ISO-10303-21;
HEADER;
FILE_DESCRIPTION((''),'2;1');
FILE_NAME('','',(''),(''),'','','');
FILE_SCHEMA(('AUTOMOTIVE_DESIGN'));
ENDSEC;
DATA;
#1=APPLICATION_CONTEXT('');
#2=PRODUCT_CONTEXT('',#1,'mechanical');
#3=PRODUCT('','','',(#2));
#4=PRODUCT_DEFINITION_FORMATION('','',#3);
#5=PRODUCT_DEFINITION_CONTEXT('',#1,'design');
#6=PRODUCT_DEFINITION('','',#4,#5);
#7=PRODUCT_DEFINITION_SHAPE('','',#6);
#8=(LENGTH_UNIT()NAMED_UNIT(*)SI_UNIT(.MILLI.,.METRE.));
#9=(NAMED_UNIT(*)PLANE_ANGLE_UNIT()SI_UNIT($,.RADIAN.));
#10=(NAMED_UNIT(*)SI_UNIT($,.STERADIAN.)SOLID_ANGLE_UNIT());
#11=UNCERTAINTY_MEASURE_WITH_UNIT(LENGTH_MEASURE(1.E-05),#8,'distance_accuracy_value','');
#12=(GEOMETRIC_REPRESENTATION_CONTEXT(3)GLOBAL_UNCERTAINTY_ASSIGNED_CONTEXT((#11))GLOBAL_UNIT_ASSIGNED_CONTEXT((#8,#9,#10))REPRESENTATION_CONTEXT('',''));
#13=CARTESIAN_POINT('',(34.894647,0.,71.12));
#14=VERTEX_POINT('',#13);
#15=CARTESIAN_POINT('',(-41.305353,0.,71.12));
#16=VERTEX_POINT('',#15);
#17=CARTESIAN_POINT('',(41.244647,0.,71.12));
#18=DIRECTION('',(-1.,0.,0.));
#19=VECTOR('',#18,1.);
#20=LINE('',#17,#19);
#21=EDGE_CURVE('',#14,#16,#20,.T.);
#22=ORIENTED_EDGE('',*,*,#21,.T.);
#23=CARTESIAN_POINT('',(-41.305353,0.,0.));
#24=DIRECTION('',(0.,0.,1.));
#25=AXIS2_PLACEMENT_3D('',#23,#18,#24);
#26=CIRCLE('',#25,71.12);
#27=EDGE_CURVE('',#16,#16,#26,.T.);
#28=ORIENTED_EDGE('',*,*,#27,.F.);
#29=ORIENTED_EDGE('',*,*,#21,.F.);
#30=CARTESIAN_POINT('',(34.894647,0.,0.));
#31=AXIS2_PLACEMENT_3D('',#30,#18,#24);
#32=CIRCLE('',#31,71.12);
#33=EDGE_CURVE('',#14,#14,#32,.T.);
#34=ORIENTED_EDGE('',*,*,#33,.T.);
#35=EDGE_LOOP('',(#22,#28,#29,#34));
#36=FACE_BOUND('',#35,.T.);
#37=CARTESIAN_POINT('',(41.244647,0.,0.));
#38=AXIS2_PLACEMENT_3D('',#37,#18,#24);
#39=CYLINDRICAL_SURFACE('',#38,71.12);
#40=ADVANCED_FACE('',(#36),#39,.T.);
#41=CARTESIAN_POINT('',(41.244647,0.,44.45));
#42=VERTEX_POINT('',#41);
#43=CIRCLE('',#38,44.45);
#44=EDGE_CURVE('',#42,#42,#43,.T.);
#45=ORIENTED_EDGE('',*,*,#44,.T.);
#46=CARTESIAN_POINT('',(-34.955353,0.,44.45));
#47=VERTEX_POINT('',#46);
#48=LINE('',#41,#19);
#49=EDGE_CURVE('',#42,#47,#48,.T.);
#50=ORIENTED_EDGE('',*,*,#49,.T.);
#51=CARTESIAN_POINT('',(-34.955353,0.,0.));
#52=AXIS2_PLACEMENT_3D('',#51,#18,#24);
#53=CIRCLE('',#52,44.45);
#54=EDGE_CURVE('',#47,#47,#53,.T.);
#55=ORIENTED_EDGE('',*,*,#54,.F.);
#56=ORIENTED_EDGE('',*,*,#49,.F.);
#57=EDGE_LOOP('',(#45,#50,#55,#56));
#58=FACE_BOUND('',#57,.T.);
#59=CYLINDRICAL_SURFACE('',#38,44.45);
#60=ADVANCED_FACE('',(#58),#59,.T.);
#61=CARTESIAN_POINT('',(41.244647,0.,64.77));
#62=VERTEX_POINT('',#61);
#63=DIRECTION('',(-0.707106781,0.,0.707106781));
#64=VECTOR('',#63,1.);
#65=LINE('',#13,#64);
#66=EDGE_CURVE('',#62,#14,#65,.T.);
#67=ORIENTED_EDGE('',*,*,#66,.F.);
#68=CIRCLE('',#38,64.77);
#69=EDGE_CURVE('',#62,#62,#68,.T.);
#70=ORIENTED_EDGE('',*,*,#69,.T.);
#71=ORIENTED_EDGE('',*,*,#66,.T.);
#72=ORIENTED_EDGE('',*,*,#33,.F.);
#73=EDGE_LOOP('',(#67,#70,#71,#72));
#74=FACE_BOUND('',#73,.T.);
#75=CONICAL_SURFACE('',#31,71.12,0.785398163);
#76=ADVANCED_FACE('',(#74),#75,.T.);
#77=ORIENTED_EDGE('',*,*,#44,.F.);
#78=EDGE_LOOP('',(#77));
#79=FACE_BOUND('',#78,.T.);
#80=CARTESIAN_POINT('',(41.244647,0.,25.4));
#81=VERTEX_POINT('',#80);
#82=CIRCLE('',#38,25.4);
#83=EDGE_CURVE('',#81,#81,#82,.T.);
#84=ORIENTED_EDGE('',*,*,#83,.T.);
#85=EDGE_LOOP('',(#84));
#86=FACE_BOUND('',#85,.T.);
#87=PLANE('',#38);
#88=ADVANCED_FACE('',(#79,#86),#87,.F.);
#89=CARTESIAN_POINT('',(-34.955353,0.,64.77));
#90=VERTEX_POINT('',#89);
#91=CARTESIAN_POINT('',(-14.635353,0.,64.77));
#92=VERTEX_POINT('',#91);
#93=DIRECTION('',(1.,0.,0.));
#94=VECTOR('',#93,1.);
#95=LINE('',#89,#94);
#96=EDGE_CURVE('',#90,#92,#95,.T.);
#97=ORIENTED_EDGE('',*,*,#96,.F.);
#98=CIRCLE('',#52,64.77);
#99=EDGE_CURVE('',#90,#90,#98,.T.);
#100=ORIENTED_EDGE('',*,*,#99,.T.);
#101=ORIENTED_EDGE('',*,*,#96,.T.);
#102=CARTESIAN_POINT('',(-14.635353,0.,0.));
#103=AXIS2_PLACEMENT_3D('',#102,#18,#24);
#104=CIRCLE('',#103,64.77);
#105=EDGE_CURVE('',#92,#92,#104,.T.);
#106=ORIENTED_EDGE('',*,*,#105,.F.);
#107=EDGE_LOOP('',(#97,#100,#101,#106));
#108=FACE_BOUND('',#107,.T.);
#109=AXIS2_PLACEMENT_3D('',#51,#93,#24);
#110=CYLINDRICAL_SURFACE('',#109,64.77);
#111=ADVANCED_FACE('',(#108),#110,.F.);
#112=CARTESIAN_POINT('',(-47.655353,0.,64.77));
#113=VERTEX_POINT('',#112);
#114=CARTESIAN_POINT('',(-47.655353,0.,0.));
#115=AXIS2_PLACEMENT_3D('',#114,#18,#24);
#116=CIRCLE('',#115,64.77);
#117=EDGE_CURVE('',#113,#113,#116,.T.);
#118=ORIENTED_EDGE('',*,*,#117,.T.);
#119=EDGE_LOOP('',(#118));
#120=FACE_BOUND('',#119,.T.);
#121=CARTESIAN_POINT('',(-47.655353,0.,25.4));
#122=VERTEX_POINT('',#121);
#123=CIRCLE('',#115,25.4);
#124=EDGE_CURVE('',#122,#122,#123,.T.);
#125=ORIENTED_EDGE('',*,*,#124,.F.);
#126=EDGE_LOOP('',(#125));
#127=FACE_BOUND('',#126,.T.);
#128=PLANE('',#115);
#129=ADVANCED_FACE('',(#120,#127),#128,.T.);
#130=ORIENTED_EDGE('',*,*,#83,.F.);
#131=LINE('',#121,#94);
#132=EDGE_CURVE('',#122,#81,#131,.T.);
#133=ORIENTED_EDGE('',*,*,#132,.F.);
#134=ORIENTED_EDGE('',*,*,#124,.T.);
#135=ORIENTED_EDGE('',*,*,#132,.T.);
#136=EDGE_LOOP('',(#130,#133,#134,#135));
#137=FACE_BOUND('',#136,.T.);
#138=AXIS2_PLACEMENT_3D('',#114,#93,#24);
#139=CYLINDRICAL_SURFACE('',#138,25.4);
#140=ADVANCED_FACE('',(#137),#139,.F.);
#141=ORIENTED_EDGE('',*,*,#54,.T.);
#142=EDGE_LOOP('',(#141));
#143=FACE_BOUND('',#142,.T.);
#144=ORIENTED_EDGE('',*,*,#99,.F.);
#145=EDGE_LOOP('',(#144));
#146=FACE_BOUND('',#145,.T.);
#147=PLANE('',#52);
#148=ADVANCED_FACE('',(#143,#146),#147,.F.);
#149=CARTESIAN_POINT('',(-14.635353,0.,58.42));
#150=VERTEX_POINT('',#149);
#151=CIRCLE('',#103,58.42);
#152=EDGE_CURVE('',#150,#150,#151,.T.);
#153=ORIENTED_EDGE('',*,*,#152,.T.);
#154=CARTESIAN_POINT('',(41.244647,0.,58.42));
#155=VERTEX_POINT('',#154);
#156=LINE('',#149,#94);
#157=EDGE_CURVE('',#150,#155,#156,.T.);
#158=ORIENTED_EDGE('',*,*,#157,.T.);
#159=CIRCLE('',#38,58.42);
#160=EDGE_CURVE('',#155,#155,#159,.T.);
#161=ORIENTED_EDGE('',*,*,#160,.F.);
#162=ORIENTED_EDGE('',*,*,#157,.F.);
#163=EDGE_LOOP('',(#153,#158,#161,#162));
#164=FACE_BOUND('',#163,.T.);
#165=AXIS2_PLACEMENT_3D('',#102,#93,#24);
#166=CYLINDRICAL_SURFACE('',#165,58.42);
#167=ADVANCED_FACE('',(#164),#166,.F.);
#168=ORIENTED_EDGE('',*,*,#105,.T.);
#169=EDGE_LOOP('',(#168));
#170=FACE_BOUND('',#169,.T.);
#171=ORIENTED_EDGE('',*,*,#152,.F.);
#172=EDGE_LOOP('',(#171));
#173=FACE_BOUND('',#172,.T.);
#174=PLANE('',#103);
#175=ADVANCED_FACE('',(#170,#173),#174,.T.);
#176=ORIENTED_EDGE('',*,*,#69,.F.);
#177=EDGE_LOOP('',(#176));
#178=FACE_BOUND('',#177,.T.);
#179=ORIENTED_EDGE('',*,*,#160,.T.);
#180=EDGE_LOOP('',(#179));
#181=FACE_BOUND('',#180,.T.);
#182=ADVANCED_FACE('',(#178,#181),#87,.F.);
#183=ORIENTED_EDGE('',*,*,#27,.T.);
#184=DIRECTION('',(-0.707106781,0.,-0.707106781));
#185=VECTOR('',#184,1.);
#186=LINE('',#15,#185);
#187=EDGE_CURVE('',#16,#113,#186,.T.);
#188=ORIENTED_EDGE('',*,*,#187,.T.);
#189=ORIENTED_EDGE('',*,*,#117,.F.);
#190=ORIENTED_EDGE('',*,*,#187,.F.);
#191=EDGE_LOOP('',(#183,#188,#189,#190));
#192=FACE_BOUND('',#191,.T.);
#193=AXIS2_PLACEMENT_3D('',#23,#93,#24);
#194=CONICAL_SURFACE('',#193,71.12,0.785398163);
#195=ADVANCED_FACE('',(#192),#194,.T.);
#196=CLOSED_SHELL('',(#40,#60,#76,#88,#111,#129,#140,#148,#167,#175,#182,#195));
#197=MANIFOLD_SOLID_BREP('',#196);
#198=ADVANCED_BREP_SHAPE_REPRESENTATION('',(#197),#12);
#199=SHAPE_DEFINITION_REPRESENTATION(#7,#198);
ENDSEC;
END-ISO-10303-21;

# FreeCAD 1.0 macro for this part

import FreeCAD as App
import Part
import Sketcher
Q = App.Units.Quantity


def edges_at(feature, points):
    """Names of the edges that pass closest to the given points."""
    edges = feature.Shape.Edges
    near = lambda p: min(range(len(edges)), key=lambda i: edges[i].distToShape(Part.Vertex(*p))[0])
    return sorted({f"Edge{near(p) + 1}" for p in points})

doc = App.newDocument("Part")
params = doc.addObject("Spreadsheet::Sheet", "Params")
for row, (alias, value) in enumerate([
    ("sketch1_width", "3 in"),
    ("sketch1_width2", "3.5 in"),
    ("sketch1_width3", "0.8 in"),
    ("sketch1_height", "0.5 in"),
    ("sketch1_height2", "1.8 in"),
    ("revolution_angle", "360 deg"),
    ("chamfer_size", "0.25 in"),
], start=1):
    params.set(f"A{row}", alias)
    params.set(f"B{row}", "=" + value)
    params.setAlias(f"B{row}", alias)

body = doc.addObject("PartDesign::Body", "Body")

sketch1 = body.newObject("Sketcher::SketchObject", "Sketch")
sketch1.AttachmentSupport = (doc.getObject("XZ_Plane"), [""])
sketch1.MapMode = "FlatFace"
sketch1.addGeometry([
    Part.LineSegment(App.Vector(-47.655353, 25.4, 0), App.Vector(41.244647, 25.4, 0)),
    Part.LineSegment(App.Vector(41.244647, 25.4, 0), App.Vector(41.244647, 44.45, 0)),
    Part.LineSegment(App.Vector(41.244647, 44.45, 0), App.Vector(-34.955353, 44.45, 0)),
    Part.LineSegment(App.Vector(-34.955353, 44.45, 0), App.Vector(-34.955353, 64.77, 0)),
    Part.LineSegment(App.Vector(-34.955353, 64.77, 0), App.Vector(-14.635353, 64.77, 0)),
    Part.LineSegment(App.Vector(-14.635353, 64.77, 0), App.Vector(-14.635353, 58.42, 0)),
    Part.LineSegment(App.Vector(-14.635353, 58.42, 0), App.Vector(41.244647, 58.42, 0)),
    Part.LineSegment(App.Vector(41.244647, 58.42, 0), App.Vector(41.244647, 71.12, 0)),
    Part.LineSegment(App.Vector(41.244647, 71.12, 0), App.Vector(-47.655353, 71.12, 0)),
    Part.LineSegment(App.Vector(-47.655353, 71.12, 0), App.Vector(-47.655353, 25.4, 0)),
], False)
sketch1.addConstraint([
    Sketcher.Constraint("Coincident", 0, 2, 1, 1),
    Sketcher.Constraint("Coincident", 1, 2, 2, 1),
    Sketcher.Constraint("Coincident", 2, 2, 3, 1),
    Sketcher.Constraint("Coincident", 3, 2, 4, 1),
    Sketcher.Constraint("Coincident", 4, 2, 5, 1),
    Sketcher.Constraint("Coincident", 5, 2, 6, 1),
    Sketcher.Constraint("Coincident", 6, 2, 7, 1),
    Sketcher.Constraint("Coincident", 7, 2, 8, 1),
    Sketcher.Constraint("Coincident", 8, 2, 9, 1),
    Sketcher.Constraint("Coincident", 9, 2, 0, 1),
    Sketcher.Constraint("Horizontal", 0),
    Sketcher.Constraint("Vertical", 1),
    Sketcher.Constraint("Horizontal", 2),
    Sketcher.Constraint("Vertical", 3),
    Sketcher.Constraint("Horizontal", 4),
    Sketcher.Constraint("Vertical", 5),
    Sketcher.Constraint("Horizontal", 6),
    Sketcher.Constraint("Vertical", 7),
    Sketcher.Constraint("Horizontal", 8),
    Sketcher.Constraint("Vertical", 9),
    Sketcher.Constraint("Vertical", 1, 2, 6, 2),
    Sketcher.Constraint("Equal", 4, 3),
    Sketcher.Constraint("DistanceX", 2, 2, 2, 1, Q("3 in")),
    Sketcher.Constraint("DistanceX", 0, 1, 0, 2, Q("3.5 in")),
    Sketcher.Constraint("DistanceX", 4, 1, 4, 2, Q("0.8 in")),
    Sketcher.Constraint("DistanceY", 7, 1, 7, 2, Q("0.5 in")),
    Sketcher.Constraint("DistanceY", 9, 2, 9, 1, Q("1.8 in")),
    Sketcher.Constraint("DistanceY", -1, 1, 0, 2, Q("1 in")),
    Sketcher.Constraint("DistanceY", 1, 1, 1, 2, Q("0.75 in")),
    Sketcher.Constraint("DistanceX", -1, 1, 0, 2, Q("41.244647 mm")),
])
sketch1.setExpression("Constraints[22]", "Params.sketch1_width")
sketch1.setExpression("Constraints[23]", "Params.sketch1_width2")
sketch1.setExpression("Constraints[24]", "Params.sketch1_width3")
sketch1.setExpression("Constraints[25]", "Params.sketch1_height")
sketch1.setExpression("Constraints[26]", "Params.sketch1_height2")
revolution = body.newObject("PartDesign::Revolution", "Revolution")
revolution.Profile = sketch1
revolution.ReferenceAxis = (sketch1, ["H_Axis"])
revolution.setExpression("Angle", "Params.revolution_angle")
doc.recompute()

chamfer = body.newObject("PartDesign::Chamfer", "Chamfer")
chamfer.Base = (revolution, edges_at(revolution, [(41.245, 0, -71.12), (-47.655, 0, -71.12)]))
chamfer.setExpression("Size", "Params.chamfer_size")

doc.recompute()
